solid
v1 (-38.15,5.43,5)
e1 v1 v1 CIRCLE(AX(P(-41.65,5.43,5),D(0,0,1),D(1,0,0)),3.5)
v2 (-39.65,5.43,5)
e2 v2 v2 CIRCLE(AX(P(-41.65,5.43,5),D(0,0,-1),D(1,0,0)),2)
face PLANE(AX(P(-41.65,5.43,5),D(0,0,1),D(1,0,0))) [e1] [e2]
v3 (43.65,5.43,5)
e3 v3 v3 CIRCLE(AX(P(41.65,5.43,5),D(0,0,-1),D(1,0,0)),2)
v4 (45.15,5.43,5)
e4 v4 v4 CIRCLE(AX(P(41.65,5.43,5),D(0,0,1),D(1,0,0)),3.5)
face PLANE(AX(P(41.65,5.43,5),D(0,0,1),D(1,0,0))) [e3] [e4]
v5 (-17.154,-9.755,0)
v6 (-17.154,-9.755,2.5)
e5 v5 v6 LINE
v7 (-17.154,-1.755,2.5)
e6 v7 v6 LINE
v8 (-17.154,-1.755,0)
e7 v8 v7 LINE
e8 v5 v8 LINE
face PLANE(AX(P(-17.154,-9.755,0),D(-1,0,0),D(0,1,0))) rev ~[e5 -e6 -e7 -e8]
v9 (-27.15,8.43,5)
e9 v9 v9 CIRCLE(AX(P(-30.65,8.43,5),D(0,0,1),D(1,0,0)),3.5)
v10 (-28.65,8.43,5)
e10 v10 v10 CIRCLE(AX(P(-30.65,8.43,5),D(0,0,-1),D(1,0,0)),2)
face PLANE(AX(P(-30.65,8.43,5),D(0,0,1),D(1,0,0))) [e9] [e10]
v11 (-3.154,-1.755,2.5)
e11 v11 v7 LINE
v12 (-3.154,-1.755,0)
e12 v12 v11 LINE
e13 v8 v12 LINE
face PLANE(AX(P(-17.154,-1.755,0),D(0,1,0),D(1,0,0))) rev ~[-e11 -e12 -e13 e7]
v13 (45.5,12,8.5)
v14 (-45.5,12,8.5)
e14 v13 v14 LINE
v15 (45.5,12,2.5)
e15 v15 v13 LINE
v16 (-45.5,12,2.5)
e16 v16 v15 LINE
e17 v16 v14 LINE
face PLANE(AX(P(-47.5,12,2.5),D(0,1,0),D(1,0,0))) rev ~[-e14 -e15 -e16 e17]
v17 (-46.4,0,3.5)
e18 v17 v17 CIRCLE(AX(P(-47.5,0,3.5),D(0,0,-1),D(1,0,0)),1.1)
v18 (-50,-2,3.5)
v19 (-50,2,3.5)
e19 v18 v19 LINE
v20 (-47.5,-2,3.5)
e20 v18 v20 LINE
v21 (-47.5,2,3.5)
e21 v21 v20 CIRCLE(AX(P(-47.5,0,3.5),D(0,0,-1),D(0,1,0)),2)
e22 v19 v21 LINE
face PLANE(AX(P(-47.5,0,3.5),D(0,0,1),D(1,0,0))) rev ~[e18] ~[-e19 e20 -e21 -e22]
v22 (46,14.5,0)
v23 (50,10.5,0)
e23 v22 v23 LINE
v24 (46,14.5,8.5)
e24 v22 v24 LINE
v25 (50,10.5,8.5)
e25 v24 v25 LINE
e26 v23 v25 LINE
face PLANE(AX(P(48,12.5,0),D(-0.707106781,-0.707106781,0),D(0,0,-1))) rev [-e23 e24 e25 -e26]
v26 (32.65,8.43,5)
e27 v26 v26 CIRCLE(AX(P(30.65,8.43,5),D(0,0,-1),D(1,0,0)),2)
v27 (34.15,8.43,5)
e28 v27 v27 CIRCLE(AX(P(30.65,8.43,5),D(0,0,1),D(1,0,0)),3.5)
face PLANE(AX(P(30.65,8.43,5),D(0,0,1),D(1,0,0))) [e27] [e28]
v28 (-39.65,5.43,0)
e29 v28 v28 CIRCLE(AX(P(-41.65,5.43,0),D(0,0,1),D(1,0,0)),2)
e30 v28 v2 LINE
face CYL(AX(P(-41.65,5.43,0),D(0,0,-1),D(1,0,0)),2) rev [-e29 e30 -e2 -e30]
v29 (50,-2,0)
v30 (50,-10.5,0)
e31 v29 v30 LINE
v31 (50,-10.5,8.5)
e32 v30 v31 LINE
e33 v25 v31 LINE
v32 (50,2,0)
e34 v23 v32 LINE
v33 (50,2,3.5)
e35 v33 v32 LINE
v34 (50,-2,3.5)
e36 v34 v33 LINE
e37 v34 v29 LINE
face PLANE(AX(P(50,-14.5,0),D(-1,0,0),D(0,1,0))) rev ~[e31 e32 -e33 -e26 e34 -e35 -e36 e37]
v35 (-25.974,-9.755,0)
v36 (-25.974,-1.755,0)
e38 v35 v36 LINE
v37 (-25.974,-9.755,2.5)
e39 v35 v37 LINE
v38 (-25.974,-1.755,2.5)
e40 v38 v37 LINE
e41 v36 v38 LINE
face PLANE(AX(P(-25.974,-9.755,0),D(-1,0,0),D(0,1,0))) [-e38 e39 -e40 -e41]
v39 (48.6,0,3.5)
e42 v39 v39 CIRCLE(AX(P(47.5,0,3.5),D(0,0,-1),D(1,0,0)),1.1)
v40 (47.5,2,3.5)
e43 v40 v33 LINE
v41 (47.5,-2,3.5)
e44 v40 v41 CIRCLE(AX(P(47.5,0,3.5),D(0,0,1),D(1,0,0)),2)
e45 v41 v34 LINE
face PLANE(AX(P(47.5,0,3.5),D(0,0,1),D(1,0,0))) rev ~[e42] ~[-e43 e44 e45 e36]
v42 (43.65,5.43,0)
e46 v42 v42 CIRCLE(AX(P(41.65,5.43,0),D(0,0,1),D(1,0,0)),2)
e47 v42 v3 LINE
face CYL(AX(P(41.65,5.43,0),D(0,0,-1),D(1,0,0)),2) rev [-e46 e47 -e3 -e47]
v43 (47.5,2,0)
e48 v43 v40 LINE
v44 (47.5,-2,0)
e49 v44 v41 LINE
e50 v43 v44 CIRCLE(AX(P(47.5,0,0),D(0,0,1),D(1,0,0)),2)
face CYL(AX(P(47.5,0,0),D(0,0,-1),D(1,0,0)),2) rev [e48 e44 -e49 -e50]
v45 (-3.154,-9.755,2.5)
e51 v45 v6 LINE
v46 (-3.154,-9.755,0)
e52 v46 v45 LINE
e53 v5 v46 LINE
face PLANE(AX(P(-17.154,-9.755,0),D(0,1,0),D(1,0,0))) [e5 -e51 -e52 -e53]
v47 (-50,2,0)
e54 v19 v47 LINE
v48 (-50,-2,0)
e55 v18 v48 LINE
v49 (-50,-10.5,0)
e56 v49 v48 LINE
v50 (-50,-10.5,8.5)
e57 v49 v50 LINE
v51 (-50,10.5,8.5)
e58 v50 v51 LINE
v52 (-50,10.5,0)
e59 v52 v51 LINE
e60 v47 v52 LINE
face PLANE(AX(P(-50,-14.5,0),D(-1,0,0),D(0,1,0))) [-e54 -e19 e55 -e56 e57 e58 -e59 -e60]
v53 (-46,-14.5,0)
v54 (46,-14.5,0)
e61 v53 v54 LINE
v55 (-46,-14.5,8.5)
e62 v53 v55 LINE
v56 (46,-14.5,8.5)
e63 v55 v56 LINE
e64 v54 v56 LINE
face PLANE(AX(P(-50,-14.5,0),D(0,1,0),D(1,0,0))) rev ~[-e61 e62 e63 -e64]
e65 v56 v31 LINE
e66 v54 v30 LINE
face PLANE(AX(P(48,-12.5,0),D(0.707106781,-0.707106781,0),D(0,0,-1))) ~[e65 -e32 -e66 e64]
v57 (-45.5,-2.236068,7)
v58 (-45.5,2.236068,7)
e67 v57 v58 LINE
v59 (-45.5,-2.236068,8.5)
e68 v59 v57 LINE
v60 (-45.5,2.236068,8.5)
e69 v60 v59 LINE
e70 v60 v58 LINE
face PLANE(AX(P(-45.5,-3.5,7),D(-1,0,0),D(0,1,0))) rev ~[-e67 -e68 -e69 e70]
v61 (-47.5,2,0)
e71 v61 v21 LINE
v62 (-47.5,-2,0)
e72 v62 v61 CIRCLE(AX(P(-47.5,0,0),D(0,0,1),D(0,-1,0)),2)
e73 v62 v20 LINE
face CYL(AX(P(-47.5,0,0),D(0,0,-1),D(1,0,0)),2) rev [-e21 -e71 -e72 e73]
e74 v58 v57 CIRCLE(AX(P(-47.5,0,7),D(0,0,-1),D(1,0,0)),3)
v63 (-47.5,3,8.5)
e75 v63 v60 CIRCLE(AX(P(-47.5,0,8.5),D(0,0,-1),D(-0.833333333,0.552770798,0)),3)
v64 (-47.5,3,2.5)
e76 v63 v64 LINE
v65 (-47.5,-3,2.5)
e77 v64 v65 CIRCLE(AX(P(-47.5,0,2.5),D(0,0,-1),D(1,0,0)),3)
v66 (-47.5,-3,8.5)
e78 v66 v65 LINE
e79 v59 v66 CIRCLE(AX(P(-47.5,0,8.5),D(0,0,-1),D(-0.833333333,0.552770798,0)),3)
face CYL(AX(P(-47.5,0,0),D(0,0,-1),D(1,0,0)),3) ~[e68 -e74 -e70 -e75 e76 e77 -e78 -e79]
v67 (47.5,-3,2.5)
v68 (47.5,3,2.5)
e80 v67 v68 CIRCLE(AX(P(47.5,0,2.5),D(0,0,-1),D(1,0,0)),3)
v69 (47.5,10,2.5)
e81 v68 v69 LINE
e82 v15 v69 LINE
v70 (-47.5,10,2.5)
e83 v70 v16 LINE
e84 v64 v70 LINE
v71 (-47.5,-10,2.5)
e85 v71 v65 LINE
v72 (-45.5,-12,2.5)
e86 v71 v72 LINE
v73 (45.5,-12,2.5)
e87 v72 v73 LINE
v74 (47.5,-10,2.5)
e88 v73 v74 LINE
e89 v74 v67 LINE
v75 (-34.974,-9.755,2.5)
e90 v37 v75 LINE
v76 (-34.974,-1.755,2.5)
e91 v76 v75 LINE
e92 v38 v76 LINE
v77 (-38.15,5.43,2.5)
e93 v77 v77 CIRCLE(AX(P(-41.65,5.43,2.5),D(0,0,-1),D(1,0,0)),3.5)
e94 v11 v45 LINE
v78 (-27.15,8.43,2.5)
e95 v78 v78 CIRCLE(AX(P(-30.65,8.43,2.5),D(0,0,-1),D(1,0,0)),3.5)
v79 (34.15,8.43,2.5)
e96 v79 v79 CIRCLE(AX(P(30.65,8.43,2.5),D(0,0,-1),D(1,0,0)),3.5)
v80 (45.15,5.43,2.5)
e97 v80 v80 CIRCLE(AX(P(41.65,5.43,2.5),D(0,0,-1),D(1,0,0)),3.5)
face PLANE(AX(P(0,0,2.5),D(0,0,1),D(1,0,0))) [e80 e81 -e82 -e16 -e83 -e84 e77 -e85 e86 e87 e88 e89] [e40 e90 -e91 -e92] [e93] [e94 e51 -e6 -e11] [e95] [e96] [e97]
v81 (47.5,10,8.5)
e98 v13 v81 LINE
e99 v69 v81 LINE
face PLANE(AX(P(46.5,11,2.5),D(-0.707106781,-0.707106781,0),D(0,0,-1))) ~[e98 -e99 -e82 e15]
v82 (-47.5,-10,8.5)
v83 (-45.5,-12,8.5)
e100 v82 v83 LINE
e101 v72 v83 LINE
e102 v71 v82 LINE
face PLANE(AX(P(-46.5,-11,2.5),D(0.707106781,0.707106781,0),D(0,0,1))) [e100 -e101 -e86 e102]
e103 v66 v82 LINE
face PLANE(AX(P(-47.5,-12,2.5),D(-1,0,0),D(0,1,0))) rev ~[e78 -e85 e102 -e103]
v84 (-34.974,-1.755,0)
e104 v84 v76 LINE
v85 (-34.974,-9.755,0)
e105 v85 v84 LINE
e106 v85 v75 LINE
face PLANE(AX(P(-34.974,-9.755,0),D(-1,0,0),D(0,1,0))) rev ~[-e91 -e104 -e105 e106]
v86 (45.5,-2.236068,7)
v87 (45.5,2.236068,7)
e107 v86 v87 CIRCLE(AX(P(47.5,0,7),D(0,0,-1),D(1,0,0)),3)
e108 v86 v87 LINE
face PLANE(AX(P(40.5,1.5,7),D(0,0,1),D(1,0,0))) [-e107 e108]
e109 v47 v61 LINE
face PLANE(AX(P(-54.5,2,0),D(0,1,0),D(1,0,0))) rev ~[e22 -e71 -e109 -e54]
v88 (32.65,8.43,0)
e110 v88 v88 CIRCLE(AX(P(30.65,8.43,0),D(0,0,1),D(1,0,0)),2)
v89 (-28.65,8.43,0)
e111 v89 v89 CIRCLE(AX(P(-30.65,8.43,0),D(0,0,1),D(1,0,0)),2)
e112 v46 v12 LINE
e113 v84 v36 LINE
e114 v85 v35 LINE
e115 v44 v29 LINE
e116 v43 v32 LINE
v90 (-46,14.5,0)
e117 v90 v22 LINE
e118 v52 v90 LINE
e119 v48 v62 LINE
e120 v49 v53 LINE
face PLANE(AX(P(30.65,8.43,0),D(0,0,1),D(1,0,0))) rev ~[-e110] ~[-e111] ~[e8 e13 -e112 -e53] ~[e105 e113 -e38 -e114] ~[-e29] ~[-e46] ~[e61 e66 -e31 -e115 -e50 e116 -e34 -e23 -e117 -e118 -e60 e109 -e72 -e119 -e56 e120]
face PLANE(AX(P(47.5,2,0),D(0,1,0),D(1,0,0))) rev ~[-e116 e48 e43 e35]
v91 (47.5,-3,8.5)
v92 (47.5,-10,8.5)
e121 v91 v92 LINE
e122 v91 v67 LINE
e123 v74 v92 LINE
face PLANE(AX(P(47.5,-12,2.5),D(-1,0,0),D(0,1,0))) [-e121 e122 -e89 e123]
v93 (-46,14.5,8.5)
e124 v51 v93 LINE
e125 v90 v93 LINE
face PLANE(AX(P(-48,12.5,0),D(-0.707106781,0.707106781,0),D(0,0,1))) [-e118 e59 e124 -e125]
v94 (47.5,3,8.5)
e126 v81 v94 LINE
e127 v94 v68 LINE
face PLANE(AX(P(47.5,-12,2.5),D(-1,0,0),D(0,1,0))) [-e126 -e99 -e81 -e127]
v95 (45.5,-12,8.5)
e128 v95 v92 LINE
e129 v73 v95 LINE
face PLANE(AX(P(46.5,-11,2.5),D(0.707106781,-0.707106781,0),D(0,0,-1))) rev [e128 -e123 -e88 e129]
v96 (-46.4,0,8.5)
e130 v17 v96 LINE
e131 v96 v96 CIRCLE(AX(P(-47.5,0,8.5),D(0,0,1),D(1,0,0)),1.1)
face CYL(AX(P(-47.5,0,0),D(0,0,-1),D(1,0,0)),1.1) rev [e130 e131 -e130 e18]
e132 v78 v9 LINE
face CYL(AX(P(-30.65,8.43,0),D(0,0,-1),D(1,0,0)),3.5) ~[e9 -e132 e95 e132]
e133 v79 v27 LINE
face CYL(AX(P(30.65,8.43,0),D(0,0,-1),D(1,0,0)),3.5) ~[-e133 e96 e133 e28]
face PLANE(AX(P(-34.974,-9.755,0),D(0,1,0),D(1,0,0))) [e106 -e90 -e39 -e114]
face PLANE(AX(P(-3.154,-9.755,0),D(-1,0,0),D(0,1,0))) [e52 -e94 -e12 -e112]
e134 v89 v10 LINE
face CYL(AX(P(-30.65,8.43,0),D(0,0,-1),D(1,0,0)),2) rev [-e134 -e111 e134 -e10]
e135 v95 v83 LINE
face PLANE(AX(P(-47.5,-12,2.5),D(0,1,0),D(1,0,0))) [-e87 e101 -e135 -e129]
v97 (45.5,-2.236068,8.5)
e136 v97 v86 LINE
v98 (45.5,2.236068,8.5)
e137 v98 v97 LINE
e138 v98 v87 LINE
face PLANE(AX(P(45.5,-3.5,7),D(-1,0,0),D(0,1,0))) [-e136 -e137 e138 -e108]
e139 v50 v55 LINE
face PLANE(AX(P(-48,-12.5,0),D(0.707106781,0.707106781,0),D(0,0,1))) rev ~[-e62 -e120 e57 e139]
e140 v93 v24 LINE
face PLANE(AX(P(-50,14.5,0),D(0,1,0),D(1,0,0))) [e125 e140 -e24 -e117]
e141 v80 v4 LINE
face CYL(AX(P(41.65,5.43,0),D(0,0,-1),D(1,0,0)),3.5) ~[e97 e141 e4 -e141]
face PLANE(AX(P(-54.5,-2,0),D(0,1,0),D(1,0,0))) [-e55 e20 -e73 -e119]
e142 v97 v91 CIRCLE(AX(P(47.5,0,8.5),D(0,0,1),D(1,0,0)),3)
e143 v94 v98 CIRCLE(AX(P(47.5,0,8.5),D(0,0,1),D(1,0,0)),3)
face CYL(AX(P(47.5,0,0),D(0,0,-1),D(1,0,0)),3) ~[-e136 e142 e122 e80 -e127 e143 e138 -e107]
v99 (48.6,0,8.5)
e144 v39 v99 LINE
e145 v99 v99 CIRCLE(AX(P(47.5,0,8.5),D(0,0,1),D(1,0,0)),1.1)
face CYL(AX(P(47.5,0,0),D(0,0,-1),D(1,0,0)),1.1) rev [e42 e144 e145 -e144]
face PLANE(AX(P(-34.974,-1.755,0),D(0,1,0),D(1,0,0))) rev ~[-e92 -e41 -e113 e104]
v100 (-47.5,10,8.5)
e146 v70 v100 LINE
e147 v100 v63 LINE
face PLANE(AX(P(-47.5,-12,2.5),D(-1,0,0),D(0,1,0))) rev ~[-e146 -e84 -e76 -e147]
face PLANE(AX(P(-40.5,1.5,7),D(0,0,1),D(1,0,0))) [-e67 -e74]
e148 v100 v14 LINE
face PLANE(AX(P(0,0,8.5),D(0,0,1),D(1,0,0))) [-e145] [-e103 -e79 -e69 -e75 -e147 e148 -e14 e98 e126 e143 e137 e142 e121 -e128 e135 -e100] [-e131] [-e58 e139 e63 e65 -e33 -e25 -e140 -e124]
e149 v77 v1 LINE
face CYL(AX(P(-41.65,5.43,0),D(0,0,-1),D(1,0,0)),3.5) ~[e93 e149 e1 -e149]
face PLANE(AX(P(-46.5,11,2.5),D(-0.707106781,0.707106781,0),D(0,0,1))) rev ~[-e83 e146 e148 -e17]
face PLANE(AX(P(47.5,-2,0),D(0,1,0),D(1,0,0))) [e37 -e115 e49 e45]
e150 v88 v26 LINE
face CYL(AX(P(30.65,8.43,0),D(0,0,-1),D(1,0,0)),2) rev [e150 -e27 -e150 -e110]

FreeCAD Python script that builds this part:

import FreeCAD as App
import Part
import Sketcher
from FreeCAD import Vector


def edges_at(feature, points):
    """Names of the edges that pass closest to the given points."""
    edges = feature.Shape.Edges
    near = lambda p: min(range(len(edges)), key=lambda i: edges[i].distToShape(Part.Vertex(*p))[0])
    return sorted({f"Edge{near(p) + 1}" for p in points})

doc = App.newDocument("Part")
body = doc.addObject("PartDesign::Body", "Body")

# Sketch on XY plane
sketch1 = body.newObject("Sketcher::SketchObject", "Sketch")
sketch1.AttachmentSupport = (doc.getObject("XY_Plane"), [""])
sketch1.MapMode = "FlatFace"
sketch1.addGeometry(Part.LineSegment(Vector(-17, -3, 0), Vector(-17, -11, 0)), False)
sketch1.addGeometry(Part.LineSegment(Vector(-17, -11, 0), Vector(-3, -11, 0)), False)
sketch1.addGeometry(Part.LineSegment(Vector(-3, -11, 0), Vector(-3, -3, 0)), False)
sketch1.addGeometry(Part.LineSegment(Vector(-3, -3, 0), Vector(-17, -3, 0)), False)
sketch1.addConstraint(Sketcher.Constraint("Coincident", 0, 2, 1, 1))
sketch1.addConstraint(Sketcher.Constraint("Coincident", 1, 2, 2, 1))
sketch1.addConstraint(Sketcher.Constraint("Coincident", 2, 2, 3, 1))
sketch1.addConstraint(Sketcher.Constraint("Coincident", 3, 2, 0, 1))
sketch1.addConstraint(Sketcher.Constraint("Vertical", 0))
sketch1.addConstraint(Sketcher.Constraint("Horizontal", 1))
sketch1.addConstraint(Sketcher.Constraint("Vertical", 2))
sketch1.addConstraint(Sketcher.Constraint("Horizontal", 3))
sketch1.addConstraint(Sketcher.Constraint("DistanceX", 1, 1, 1, 2, 14.0))
sketch1.addConstraint(Sketcher.Constraint("DistanceY", 0, 2, 0, 1, 8.0))
sketch1.addConstraint(Sketcher.Constraint("DistanceX", 0, 2, -1, 1, 17.154))
sketch1.addConstraint(Sketcher.Constraint("DistanceY", 0, 2, -1, 1, 10.755))
pad1 = body.newObject("PartDesign::Pad", "Pad")
pad1.Profile = sketch1
pad1.Length = 10
body2 = doc.addObject("PartDesign::Body", "Body001")
body2.AllowCompound = True

# Sketch on XY plane
sketch2 = body2.newObject("Sketcher::SketchObject", "Sketch001")
sketch2.AttachmentSupport = (doc.getObject("XY_Plane001"), [""])
sketch2.MapMode = "FlatFace"
sketch2.addGeometry(Part.LineSegment(Vector(-35, -3, 0), Vector(-35, -11, 0)), False)
sketch2.addGeometry(Part.LineSegment(Vector(-35, -11, 0), Vector(-26, -11, 0)), False)
sketch2.addGeometry(Part.LineSegment(Vector(-26, -11, 0), Vector(-26, -3, 0)), False)
sketch2.addGeometry(Part.LineSegment(Vector(-26, -3, 0), Vector(-35, -3, 0)), False)
sketch2.addConstraint(Sketcher.Constraint("Coincident", 0, 2, 1, 1))
sketch2.addConstraint(Sketcher.Constraint("Coincident", 1, 2, 2, 1))
sketch2.addConstraint(Sketcher.Constraint("Coincident", 2, 2, 3, 1))
sketch2.addConstraint(Sketcher.Constraint("Coincident", 3, 2, 0, 1))
sketch2.addConstraint(Sketcher.Constraint("Vertical", 0))
sketch2.addConstraint(Sketcher.Constraint("Horizontal", 1))
sketch2.addConstraint(Sketcher.Constraint("Vertical", 2))
sketch2.addConstraint(Sketcher.Constraint("Horizontal", 3))
sketch2.addConstraint(Sketcher.Constraint("DistanceX", 1, 1, 1, 2, 9.0))
sketch2.addConstraint(Sketcher.Constraint("DistanceY", 0, 2, 0, 1, 8.0))
sketch2.addConstraint(Sketcher.Constraint("DistanceX", 0, 2, -1, 1, 34.974))
sketch2.addConstraint(Sketcher.Constraint("DistanceY", 0, 2, -1, 1, 10.755))
pad2 = body2.newObject("PartDesign::Pad", "Pad001")
pad2.Profile = sketch2
pad2.Length = 10
doc.recompute()

boolean = body2.newObject("PartDesign::Boolean", "Boolean")
boolean.Type = "Fuse"
boolean.addObjects([body])
body3 = doc.addObject("PartDesign::Body", "Body002")
body3.AllowCompound = True
doc.recompute()

body2.Placement = App.Placement(Vector(0, 1, 0), App.Rotation(Vector(0, 0, 1), 0))
boolean2 = body3.newObject("PartDesign::Boolean", "Boolean001")
boolean2.Type = "Fuse"
boolean2.addObjects([body2])
body4 = doc.addObject("PartDesign::Body", "Body003")

# Sketch on XY plane
sketch3 = body4.newObject("Sketcher::SketchObject", "Sketch002")
sketch3.AttachmentSupport = (doc.getObject("XY_Plane003"), [""])
sketch3.MapMode = "FlatFace"
sketch3.addGeometry(Part.LineSegment(Vector(-54.5, 2, 0), Vector(-54.5, -2, 0)), False)
sketch3.addGeometry(Part.LineSegment(Vector(-54.5, -2, 0), Vector(-47.5, -2, 0)), False)
sketch3.addGeometry(Part.LineSegment(Vector(-47.5, -2, 0), Vector(-47.5, 2, 0)), False)
sketch3.addGeometry(Part.LineSegment(Vector(-47.5, 2, 0), Vector(-54.5, 2, 0)), False)
sketch3.addConstraint(Sketcher.Constraint("Coincident", 0, 2, 1, 1))
sketch3.addConstraint(Sketcher.Constraint("Coincident", 1, 2, 2, 1))
sketch3.addConstraint(Sketcher.Constraint("Coincident", 2, 2, 3, 1))
sketch3.addConstraint(Sketcher.Constraint("Coincident", 3, 2, 0, 1))
sketch3.addConstraint(Sketcher.Constraint("Vertical", 0))
sketch3.addConstraint(Sketcher.Constraint("Horizontal", 1))
sketch3.addConstraint(Sketcher.Constraint("Vertical", 2))
sketch3.addConstraint(Sketcher.Constraint("Horizontal", 3))
sketch3.addConstraint(Sketcher.Constraint("DistanceX", 1, 1, 1, 2, 7.0))
sketch3.addConstraint(Sketcher.Constraint("DistanceY", 0, 2, 0, 1, 4.0))
sketch3.addConstraint(Sketcher.Constraint("DistanceY", 0, 2, -1, 1, 2.0))
sketch3.addConstraint(Sketcher.Constraint("DistanceX", 0, 2, -1, 1, 54.5))
pad3 = body4.newObject("PartDesign::Pad", "Pad002")
pad3.Profile = sketch3
pad3.Length = 3.5
body5 = doc.addObject("PartDesign::Body", "Body004")

# Sketch on XY plane
sketch4 = body5.newObject("Sketcher::SketchObject", "Sketch003")
sketch4.AttachmentSupport = (doc.getObject("XY_Plane004"), [""])
sketch4.MapMode = "FlatFace"
sketch4.addGeometry(Part.Circle(Vector(-47.5, 0, 0), Vector(0, 0, 1), 2), False)
sketch4.addConstraint(Sketcher.Constraint("PointOnObject", 0, 3, -1))
sketch4.addConstraint(Sketcher.Constraint("Diameter", 0, 4.0))
sketch4.addConstraint(Sketcher.Constraint("DistanceX", 0, 3, -1, 1, 47.5))
pad4 = body5.newObject("PartDesign::Pad", "Pad003")
pad4.Profile = sketch4
pad4.Length = 3.5
body6 = doc.addObject("PartDesign::Body", "Body005")

# Sketch on XY plane
sketch5 = body6.newObject("Sketcher::SketchObject", "Sketch004")
sketch5.AttachmentSupport = (doc.getObject("XY_Plane005"), [""])
sketch5.MapMode = "FlatFace"
sketch5.addGeometry(Part.Circle(Vector(47.5, 0, 0), Vector(0, 0, 1), 2), False)
sketch5.addConstraint(Sketcher.Constraint("PointOnObject", 0, 3, -1))
sketch5.addConstraint(Sketcher.Constraint("Diameter", 0, 4.0))
sketch5.addConstraint(Sketcher.Constraint("DistanceX", -1, 1, 0, 3, 47.5))
pad5 = body6.newObject("PartDesign::Pad", "Pad004")
pad5.Profile = sketch5
pad5.Length = 3.5
body7 = doc.addObject("PartDesign::Body", "Body006")
body7.AllowCompound = True

# Sketch on XY plane
sketch6 = body7.newObject("Sketcher::SketchObject", "Sketch005")
sketch6.AttachmentSupport = (doc.getObject("XY_Plane006"), [""])
sketch6.MapMode = "FlatFace"
sketch6.addGeometry(Part.LineSegment(Vector(47.5, 2, 0), Vector(47.5, -2, 0)), False)
sketch6.addGeometry(Part.LineSegment(Vector(47.5, -2, 0), Vector(54.5, -2, 0)), False)
sketch6.addGeometry(Part.LineSegment(Vector(54.5, -2, 0), Vector(54.5, 2, 0)), False)
sketch6.addGeometry(Part.LineSegment(Vector(54.5, 2, 0), Vector(47.5, 2, 0)), False)
sketch6.addConstraint(Sketcher.Constraint("Coincident", 0, 2, 1, 1))
sketch6.addConstraint(Sketcher.Constraint("Coincident", 1, 2, 2, 1))
sketch6.addConstraint(Sketcher.Constraint("Coincident", 2, 2, 3, 1))
sketch6.addConstraint(Sketcher.Constraint("Coincident", 3, 2, 0, 1))
sketch6.addConstraint(Sketcher.Constraint("Vertical", 0))
sketch6.addConstraint(Sketcher.Constraint("Horizontal", 1))
sketch6.addConstraint(Sketcher.Constraint("Vertical", 2))
sketch6.addConstraint(Sketcher.Constraint("Horizontal", 3))
sketch6.addConstraint(Sketcher.Constraint("DistanceX", 1, 1, 1, 2, 7.0))
sketch6.addConstraint(Sketcher.Constraint("DistanceY", 0, 2, 0, 1, 4.0))
sketch6.addConstraint(Sketcher.Constraint("DistanceY", 0, 2, -1, 1, 2.0))
sketch6.addConstraint(Sketcher.Constraint("DistanceX", -1, 1, 0, 2, 47.5))
pad6 = body7.newObject("PartDesign::Pad", "Pad005")
pad6.Profile = sketch6
pad6.Length = 3.5
doc.recompute()

boolean3 = body7.newObject("PartDesign::Boolean", "Boolean002")
boolean3.Type = "Fuse"
boolean3.addObjects([body4])
doc.recompute()

boolean4 = body7.newObject("PartDesign::Boolean", "Boolean003")
boolean4.Type = "Fuse"
boolean4.addObjects([body5])
doc.recompute()

boolean5 = body7.newObject("PartDesign::Boolean", "Boolean004")
boolean5.Type = "Fuse"
boolean5.addObjects([body6])
body8 = doc.addObject("PartDesign::Body", "Body007")

# Sketch on XY plane
sketch7 = body8.newObject("Sketcher::SketchObject", "Sketch006")
sketch7.AttachmentSupport = (doc.getObject("XY_Plane007"), [""])
sketch7.MapMode = "FlatFace"
sketch7.addGeometry(Part.Circle(Vector(47.5, 0, 0), Vector(0, 0, 1), 1.1), False)
sketch7.addConstraint(Sketcher.Constraint("PointOnObject", 0, 3, -1))
sketch7.addConstraint(Sketcher.Constraint("Diameter", 0, 2.2))
sketch7.addConstraint(Sketcher.Constraint("DistanceX", -1, 1, 0, 3, 47.5))
pad7 = body8.newObject("PartDesign::Pad", "Pad006")
pad7.Profile = sketch7
pad7.Length = 8.5
body9 = doc.addObject("PartDesign::Body", "Body008")
body9.AllowCompound = True

# Sketch on XY plane
sketch8 = body9.newObject("Sketcher::SketchObject", "Sketch007")
sketch8.AttachmentSupport = (doc.getObject("XY_Plane008"), [""])
sketch8.MapMode = "FlatFace"
sketch8.addGeometry(Part.Circle(Vector(-47.5, 0, 0), Vector(0, 0, 1), 1.1), False)
sketch8.addConstraint(Sketcher.Constraint("PointOnObject", 0, 3, -1))
sketch8.addConstraint(Sketcher.Constraint("Diameter", 0, 2.2))
sketch8.addConstraint(Sketcher.Constraint("DistanceX", 0, 3, -1, 1, 47.5))
pad8 = body9.newObject("PartDesign::Pad", "Pad007")
pad8.Profile = sketch8
pad8.Length = 8.5
doc.recompute()

boolean6 = body9.newObject("PartDesign::Boolean", "Boolean005")
boolean6.Type = "Fuse"
boolean6.addObjects([body8])
body10 = doc.addObject("PartDesign::Body", "Body009")

# Sketch on XY plane
sketch9 = body10.newObject("Sketcher::SketchObject", "Sketch008")
sketch9.AttachmentSupport = (doc.getObject("XY_Plane009"), [""])
sketch9.MapMode = "FlatFace"
sketch9.addGeometry(Part.Circle(Vector(-25.6, 13.9, 0), Vector(0, 0, 1), 2), False)
sketch9.addConstraint(Sketcher.Constraint("Diameter", 0, 4.0))
sketch9.addConstraint(Sketcher.Constraint("DistanceX", 0, 3, -1, 1, 25.65))
sketch9.addConstraint(Sketcher.Constraint("DistanceY", -1, 1, 0, 3, 13.93))
pad9 = body10.newObject("PartDesign::Pad", "Pad008")
pad9.Profile = sketch9
pad9.Length = 10
body11 = doc.addObject("PartDesign::Body", "Body010")

# Sketch on XY plane
sketch10 = body11.newObject("Sketcher::SketchObject", "Sketch009")
sketch10.AttachmentSupport = (doc.getObject("XY_Plane010"), [""])
sketch10.MapMode = "FlatFace"
sketch10.addGeometry(Part.Circle(Vector(-36.6, 10.9, 0), Vector(0, 0, 1), 2), False)
sketch10.addConstraint(Sketcher.Constraint("Diameter", 0, 4.0))
sketch10.addConstraint(Sketcher.Constraint("DistanceX", 0, 3, -1, 1, 36.65))
sketch10.addConstraint(Sketcher.Constraint("DistanceY", -1, 1, 0, 3, 10.93))
pad10 = body11.newObject("PartDesign::Pad", "Pad009")
pad10.Profile = sketch10
pad10.Length = 10
body12 = doc.addObject("PartDesign::Body", "Body011")

# Sketch on XY plane
sketch11 = body12.newObject("Sketcher::SketchObject", "Sketch010")
sketch11.AttachmentSupport = (doc.getObject("XY_Plane011"), [""])
sketch11.MapMode = "FlatFace"
sketch11.addGeometry(Part.Circle(Vector(35.6, 13.9, 0), Vector(0, 0, 1), 2), False)
sketch11.addConstraint(Sketcher.Constraint("Diameter", 0, 4.0))
sketch11.addConstraint(Sketcher.Constraint("DistanceX", -1, 1, 0, 3, 35.65))
sketch11.addConstraint(Sketcher.Constraint("DistanceY", -1, 1, 0, 3, 13.93))
pad11 = body12.newObject("PartDesign::Pad", "Pad010")
pad11.Profile = sketch11
pad11.Length = 10
body13 = doc.addObject("PartDesign::Body", "Body012")
body13.AllowCompound = True

# Sketch on XY plane
sketch12 = body13.newObject("Sketcher::SketchObject", "Sketch011")
sketch12.AttachmentSupport = (doc.getObject("XY_Plane012"), [""])
sketch12.MapMode = "FlatFace"
sketch12.addGeometry(Part.Circle(Vector(46.6, 10.9, 0), Vector(0, 0, 1), 2), False)
sketch12.addConstraint(Sketcher.Constraint("Diameter", 0, 4.0))
sketch12.addConstraint(Sketcher.Constraint("DistanceX", -1, 1, 0, 3, 46.65))
sketch12.addConstraint(Sketcher.Constraint("DistanceY", -1, 1, 0, 3, 10.93))
pad12 = body13.newObject("PartDesign::Pad", "Pad011")
pad12.Profile = sketch12
pad12.Length = 10
doc.recompute()

boolean7 = body13.newObject("PartDesign::Boolean", "Boolean006")
boolean7.Type = "Fuse"
boolean7.addObjects([body10])
doc.recompute()

boolean8 = body13.newObject("PartDesign::Boolean", "Boolean007")
boolean8.Type = "Fuse"
boolean8.addObjects([body11])
doc.recompute()

boolean9 = body13.newObject("PartDesign::Boolean", "Boolean008")
boolean9.Type = "Fuse"
boolean9.addObjects([body12])
body14 = doc.addObject("PartDesign::Body", "Body013")
body14.AllowCompound = True
doc.recompute()

body13.Placement = App.Placement(Vector(-5, -5.5, 0), App.Rotation(Vector(0, 0, 1), 0))
boolean10 = body14.newObject("PartDesign::Boolean", "Boolean009")
boolean10.Type = "Fuse"
boolean10.addObjects([body13])
body15 = doc.addObject("PartDesign::Body", "Body014")

# Sketch on XY plane
sketch13 = body15.newObject("Sketcher::SketchObject", "Sketch012")
sketch13.AttachmentSupport = (doc.getObject("XY_Plane014"), [""])
sketch13.MapMode = "FlatFace"
sketch13.addGeometry(Part.Circle(Vector(-36.6, 10.9, 0), Vector(0, 0, 1), 3.5), False)
sketch13.addConstraint(Sketcher.Constraint("Diameter", 0, 7.0))
sketch13.addConstraint(Sketcher.Constraint("DistanceX", 0, 3, -1, 1, 36.65))
sketch13.addConstraint(Sketcher.Constraint("DistanceY", -1, 1, 0, 3, 10.93))
pad13 = body15.newObject("PartDesign::Pad", "Pad012")
pad13.Profile = sketch13
pad13.Length = 5
body16 = doc.addObject("PartDesign::Body", "Body015")

# Sketch on XY plane
sketch14 = body16.newObject("Sketcher::SketchObject", "Sketch013")
sketch14.AttachmentSupport = (doc.getObject("XY_Plane015"), [""])
sketch14.MapMode = "FlatFace"
sketch14.addGeometry(Part.Circle(Vector(-25.6, 13.9, 0), Vector(0, 0, 1), 3.5), False)
sketch14.addConstraint(Sketcher.Constraint("Diameter", 0, 7.0))
sketch14.addConstraint(Sketcher.Constraint("DistanceX", 0, 3, -1, 1, 25.65))
sketch14.addConstraint(Sketcher.Constraint("DistanceY", -1, 1, 0, 3, 13.93))
pad14 = body16.newObject("PartDesign::Pad", "Pad013")
pad14.Profile = sketch14
pad14.Length = 5
body17 = doc.addObject("PartDesign::Body", "Body016")

# Sketch on XY plane
sketch15 = body17.newObject("Sketcher::SketchObject", "Sketch014")
sketch15.AttachmentSupport = (doc.getObject("XY_Plane016"), [""])
sketch15.MapMode = "FlatFace"
sketch15.addGeometry(Part.Circle(Vector(46.6, 10.9, 0), Vector(0, 0, 1), 3.5), False)
sketch15.addConstraint(Sketcher.Constraint("Diameter", 0, 7.0))
sketch15.addConstraint(Sketcher.Constraint("DistanceX", -1, 1, 0, 3, 46.65))
sketch15.addConstraint(Sketcher.Constraint("DistanceY", -1, 1, 0, 3, 10.93))
pad15 = body17.newObject("PartDesign::Pad", "Pad014")
pad15.Profile = sketch15
pad15.Length = 5
body18 = doc.addObject("PartDesign::Body", "Body017")
body18.AllowCompound = True

# Sketch on XY plane
sketch16 = body18.newObject("Sketcher::SketchObject", "Sketch015")
sketch16.AttachmentSupport = (doc.getObject("XY_Plane017"), [""])
sketch16.MapMode = "FlatFace"
sketch16.addGeometry(Part.Circle(Vector(35.6, 13.9, 0), Vector(0, 0, 1), 3.5), False)
sketch16.addConstraint(Sketcher.Constraint("Diameter", 0, 7.0))
sketch16.addConstraint(Sketcher.Constraint("DistanceX", -1, 1, 0, 3, 35.65))
sketch16.addConstraint(Sketcher.Constraint("DistanceY", -1, 1, 0, 3, 13.93))
pad16 = body18.newObject("PartDesign::Pad", "Pad015")
pad16.Profile = sketch16
pad16.Length = 5
doc.recompute()

boolean11 = body18.newObject("PartDesign::Boolean", "Boolean010")
boolean11.Type = "Fuse"
boolean11.addObjects([body15])
doc.recompute()

boolean12 = body18.newObject("PartDesign::Boolean", "Boolean011")
boolean12.Type = "Fuse"
boolean12.addObjects([body16])
doc.recompute()

boolean13 = body18.newObject("PartDesign::Boolean", "Boolean012")
boolean13.Type = "Fuse"
boolean13.addObjects([body17])
body19 = doc.addObject("PartDesign::Body", "Body018")
body19.AllowCompound = True
doc.recompute()

body18.Placement = App.Placement(Vector(-5, -5.5, 0), App.Rotation(Vector(0, 0, 1), 0))
boolean14 = body19.newObject("PartDesign::Boolean", "Boolean013")
boolean14.Type = "Fuse"
boolean14.addObjects([body18])
body20 = doc.addObject("PartDesign::Body", "Body019")

# Sketch on XY plane
sketch17 = body20.newObject("Sketcher::SketchObject", "Sketch016")
sketch17.AttachmentSupport = (doc.getObject("XY_Plane019"), [""])
sketch17.MapMode = "FlatFace"
sketch17.AttachmentOffset = App.Placement(Vector(0, 0, 2.5), App.Rotation())
sketch17.addGeometry(Part.LineSegment(Vector(-48, 12, 0), Vector(-48, -12, 0)), False)
sketch17.addGeometry(Part.LineSegment(Vector(-48, -12, 0), Vector(48, -12, 0)), False)
sketch17.addGeometry(Part.LineSegment(Vector(48, -12, 0), Vector(48, 12, 0)), False)
sketch17.addGeometry(Part.LineSegment(Vector(48, 12, 0), Vector(-48, 12, 0)), False)
sketch17.addConstraint(Sketcher.Constraint("Coincident", 0, 2, 1, 1))
sketch17.addConstraint(Sketcher.Constraint("Coincident", 1, 2, 2, 1))
sketch17.addConstraint(Sketcher.Constraint("Coincident", 2, 2, 3, 1))
sketch17.addConstraint(Sketcher.Constraint("Coincident", 3, 2, 0, 1))
sketch17.addConstraint(Sketcher.Constraint("Vertical", 0))
sketch17.addConstraint(Sketcher.Constraint("Horizontal", 1))
sketch17.addConstraint(Sketcher.Constraint("Vertical", 2))
sketch17.addConstraint(Sketcher.Constraint("Horizontal", 3))
sketch17.addConstraint(Sketcher.Constraint("Symmetric", 0, 2, 2, 2, -1, 1))
sketch17.addConstraint(Sketcher.Constraint("DistanceX", 1, 1, 1, 2, 95.0))
sketch17.addConstraint(Sketcher.Constraint("DistanceY", 0, 2, 0, 1, 24.0))
pad17 = body20.newObject("PartDesign::Pad", "Pad016")
pad17.Profile = sketch17
pad17.Length = 22.5
body21 = doc.addObject("PartDesign::Body", "Body020")

# Sketch on XY plane
sketch18 = body21.newObject("Sketcher::SketchObject", "Sketch017")
sketch18.AttachmentSupport = (doc.getObject("XY_Plane020"), [""])
sketch18.MapMode = "FlatFace"
sketch18.addGeometry(Part.LineSegment(Vector(-50, 14, 0), Vector(-50, -14, 0)), False)
sketch18.addGeometry(Part.LineSegment(Vector(-50, -14, 0), Vector(50, -14, 0)), False)
sketch18.addGeometry(Part.LineSegment(Vector(50, -14, 0), Vector(50, 14, 0)), False)
sketch18.addGeometry(Part.LineSegment(Vector(50, 14, 0), Vector(-50, 14, 0)), False)
sketch18.addConstraint(Sketcher.Constraint("Coincident", 0, 2, 1, 1))
sketch18.addConstraint(Sketcher.Constraint("Coincident", 1, 2, 2, 1))
sketch18.addConstraint(Sketcher.Constraint("Coincident", 2, 2, 3, 1))
sketch18.addConstraint(Sketcher.Constraint("Coincident", 3, 2, 0, 1))
sketch18.addConstraint(Sketcher.Constraint("Vertical", 0))
sketch18.addConstraint(Sketcher.Constraint("Horizontal", 1))
sketch18.addConstraint(Sketcher.Constraint("Vertical", 2))
sketch18.addConstraint(Sketcher.Constraint("Horizontal", 3))
sketch18.addConstraint(Sketcher.Constraint("Symmetric", 0, 2, 2, 2, -1, 1))
sketch18.addConstraint(Sketcher.Constraint("DistanceX", 1, 1, 1, 2, 100.0))
sketch18.addConstraint(Sketcher.Constraint("DistanceY", 0, 2, 0, 1, 29.0))
pad18 = body21.newObject("PartDesign::Pad", "Pad017")
pad18.Profile = sketch18
pad18.Length = 8.5
doc.recompute()

boolean15 = body21.newObject("PartDesign::Boolean", "Boolean014")
boolean15.Type = "Cut"
boolean15.addObjects([body20])
doc.recompute()

boolean16 = body21.newObject("PartDesign::Boolean", "Boolean015")
boolean16.Type = "Fuse"
boolean16.addObjects([body19])
doc.recompute()

boolean17 = body21.newObject("PartDesign::Boolean", "Boolean016")
boolean17.Type = "Cut"
boolean17.addObjects([body14])
body22 = doc.addObject("PartDesign::Body", "Body021")

# Sketch on XY plane
sketch19 = body22.newObject("Sketcher::SketchObject", "Sketch018")
sketch19.AttachmentSupport = (doc.getObject("XY_Plane021"), [""])
sketch19.MapMode = "FlatFace"
sketch19.AttachmentOffset = App.Placement(Vector(0, 0, 7), App.Rotation())
sketch19.addGeometry(Part.LineSegment(Vector(-46, 6, 0), Vector(-46, -4, 0)), False)
sketch19.addGeometry(Part.LineSegment(Vector(-46, -4, 0), Vector(-36, -4, 0)), False)
sketch19.addGeometry(Part.LineSegment(Vector(-36, -4, 0), Vector(-36, 6, 0)), False)
sketch19.addGeometry(Part.LineSegment(Vector(-36, 6, 0), Vector(-46, 6, 0)), False)
sketch19.addConstraint(Sketcher.Constraint("Coincident", 0, 2, 1, 1))
sketch19.addConstraint(Sketcher.Constraint("Coincident", 1, 2, 2, 1))
sketch19.addConstraint(Sketcher.Constraint("Coincident", 2, 2, 3, 1))
sketch19.addConstraint(Sketcher.Constraint("Coincident", 3, 2, 0, 1))
sketch19.addConstraint(Sketcher.Constraint("Vertical", 0))
sketch19.addConstraint(Sketcher.Constraint("Horizontal", 1))
sketch19.addConstraint(Sketcher.Constraint("Vertical", 2))
sketch19.addConstraint(Sketcher.Constraint("Horizontal", 3))
sketch19.addConstraint(Sketcher.Constraint("Equal", 3, 0))
sketch19.addConstraint(Sketcher.Constraint("DistanceX", 1, 1, 1, 2, 10.0))
sketch19.addConstraint(Sketcher.Constraint("DistanceX", 0, 2, -1, 1, 45.5))
sketch19.addConstraint(Sketcher.Constraint("DistanceY", 0, 2, -1, 1, 3.5))
pad19 = body22.newObject("PartDesign::Pad", "Pad018")
pad19.Profile = sketch19
pad19.Length = 10
body23 = doc.addObject("PartDesign::Body", "Body022")

# Sketch on XY plane
sketch20 = body23.newObject("Sketcher::SketchObject", "Sketch019")
sketch20.AttachmentSupport = (doc.getObject("XY_Plane022"), [""])
sketch20.MapMode = "FlatFace"
sketch20.addGeometry(Part.LineSegment(Vector(-60, 6, 0), Vector(-60, -4, 0)), False)
sketch20.addGeometry(Part.LineSegment(Vector(-60, -4, 0), Vector(-50, -4, 0)), False)
sketch20.addGeometry(Part.LineSegment(Vector(-50, -4, 0), Vector(-50, 6, 0)), False)
sketch20.addGeometry(Part.LineSegment(Vector(-50, 6, 0), Vector(-60, 6, 0)), False)
sketch20.addConstraint(Sketcher.Constraint("Coincident", 0, 2, 1, 1))
sketch20.addConstraint(Sketcher.Constraint("Coincident", 1, 2, 2, 1))
sketch20.addConstraint(Sketcher.Constraint("Coincident", 2, 2, 3, 1))
sketch20.addConstraint(Sketcher.Constraint("Coincident", 3, 2, 0, 1))
sketch20.addConstraint(Sketcher.Constraint("Vertical", 0))
sketch20.addConstraint(Sketcher.Constraint("Horizontal", 1))
sketch20.addConstraint(Sketcher.Constraint("Vertical", 2))
sketch20.addConstraint(Sketcher.Constraint("Horizontal", 3))
sketch20.addConstraint(Sketcher.Constraint("Equal", 3, 0))
sketch20.addConstraint(Sketcher.Constraint("DistanceX", 1, 1, 1, 2, 10.0))
sketch20.addConstraint(Sketcher.Constraint("DistanceX", 0, 2, -1, 1, 60.0))
sketch20.addConstraint(Sketcher.Constraint("DistanceY", 0, 2, -1, 1, 4.5))
pad20 = body23.newObject("PartDesign::Pad", "Pad019")
pad20.Profile = sketch20
pad20.Length = 10
body24 = doc.addObject("PartDesign::Body", "Body023")

# Sketch on XY plane
sketch21 = body24.newObject("Sketcher::SketchObject", "Sketch020")
sketch21.AttachmentSupport = (doc.getObject("XY_Plane023"), [""])
sketch21.MapMode = "FlatFace"
sketch21.addGeometry(Part.Circle(Vector(-47.5, 0, 0), Vector(0, 0, 1), 3), False)
sketch21.addConstraint(Sketcher.Constraint("PointOnObject", 0, 3, -1))
sketch21.addConstraint(Sketcher.Constraint("Diameter", 0, 6.0))
sketch21.addConstraint(Sketcher.Constraint("DistanceX", 0, 3, -1, 1, 47.5))
pad21 = body24.newObject("PartDesign::Pad", "Pad020")
pad21.Profile = sketch21
pad21.Length = 8.5
doc.recompute()

boolean18 = body24.newObject("PartDesign::Boolean", "Boolean017")
boolean18.Type = "Cut"
boolean18.addObjects([body23])
doc.recompute()

boolean19 = body24.newObject("PartDesign::Boolean", "Boolean018")
boolean19.Type = "Cut"
boolean19.addObjects([body22])
body25 = doc.addObject("PartDesign::Body", "Body024")

# Sketch on XY plane
sketch22 = body25.newObject("Sketcher::SketchObject", "Sketch021")
sketch22.AttachmentSupport = (doc.getObject("XY_Plane024"), [""])
sketch22.MapMode = "FlatFace"
sketch22.AttachmentOffset = App.Placement(Vector(0, 0, 7), App.Rotation())
sketch22.addGeometry(Part.LineSegment(Vector(36, 6, 0), Vector(36, -4, 0)), False)
sketch22.addGeometry(Part.LineSegment(Vector(36, -4, 0), Vector(46, -4, 0)), False)
sketch22.addGeometry(Part.LineSegment(Vector(46, -4, 0), Vector(46, 6, 0)), False)
sketch22.addGeometry(Part.LineSegment(Vector(46, 6, 0), Vector(36, 6, 0)), False)
sketch22.addConstraint(Sketcher.Constraint("Coincident", 0, 2, 1, 1))
sketch22.addConstraint(Sketcher.Constraint("Coincident", 1, 2, 2, 1))
sketch22.addConstraint(Sketcher.Constraint("Coincident", 2, 2, 3, 1))
sketch22.addConstraint(Sketcher.Constraint("Coincident", 3, 2, 0, 1))
sketch22.addConstraint(Sketcher.Constraint("Vertical", 0))
sketch22.addConstraint(Sketcher.Constraint("Horizontal", 1))
sketch22.addConstraint(Sketcher.Constraint("Vertical", 2))
sketch22.addConstraint(Sketcher.Constraint("Horizontal", 3))
sketch22.addConstraint(Sketcher.Constraint("Equal", 3, 0))
sketch22.addConstraint(Sketcher.Constraint("DistanceX", 1, 1, 1, 2, 10.0))
sketch22.addConstraint(Sketcher.Constraint("DistanceX", -1, 1, 0, 2, 35.5))
sketch22.addConstraint(Sketcher.Constraint("DistanceY", 0, 2, -1, 1, 3.5))
pad22 = body25.newObject("PartDesign::Pad", "Pad021")
pad22.Profile = sketch22
pad22.Length = 10
body26 = doc.addObject("PartDesign::Body", "Body025")

# Sketch on XY plane
sketch23 = body26.newObject("Sketcher::SketchObject", "Sketch022")
sketch23.AttachmentSupport = (doc.getObject("XY_Plane025"), [""])
sketch23.MapMode = "FlatFace"
sketch23.addGeometry(Part.LineSegment(Vector(50, 6, 0), Vector(50, -4, 0)), False)
sketch23.addGeometry(Part.LineSegment(Vector(50, -4, 0), Vector(60, -4, 0)), False)
sketch23.addGeometry(Part.LineSegment(Vector(60, -4, 0), Vector(60, 6, 0)), False)
sketch23.addGeometry(Part.LineSegment(Vector(60, 6, 0), Vector(50, 6, 0)), False)
sketch23.addConstraint(Sketcher.Constraint("Coincident", 0, 2, 1, 1))
sketch23.addConstraint(Sketcher.Constraint("Coincident", 1, 2, 2, 1))
sketch23.addConstraint(Sketcher.Constraint("Coincident", 2, 2, 3, 1))
sketch23.addConstraint(Sketcher.Constraint("Coincident", 3, 2, 0, 1))
sketch23.addConstraint(Sketcher.Constraint("Vertical", 0))
sketch23.addConstraint(Sketcher.Constraint("Horizontal", 1))
sketch23.addConstraint(Sketcher.Constraint("Vertical", 2))
sketch23.addConstraint(Sketcher.Constraint("Horizontal", 3))
sketch23.addConstraint(Sketcher.Constraint("Equal", 3, 0))
sketch23.addConstraint(Sketcher.Constraint("DistanceX", 1, 1, 1, 2, 10.0))
sketch23.addConstraint(Sketcher.Constraint("DistanceX", -1, 1, 0, 2, 50.0))
sketch23.addConstraint(Sketcher.Constraint("DistanceY", 0, 2, -1, 1, 4.5))
pad23 = body26.newObject("PartDesign::Pad", "Pad022")
pad23.Profile = sketch23
pad23.Length = 10
body27 = doc.addObject("PartDesign::Body", "Body026")
body27.AllowCompound = True

# Sketch on XY plane
sketch24 = body27.newObject("Sketcher::SketchObject", "Sketch023")
sketch24.AttachmentSupport = (doc.getObject("XY_Plane026"), [""])
sketch24.MapMode = "FlatFace"
sketch24.addGeometry(Part.Circle(Vector(47.5, 0, 0), Vector(0, 0, 1), 3), False)
sketch24.addConstraint(Sketcher.Constraint("PointOnObject", 0, 3, -1))
sketch24.addConstraint(Sketcher.Constraint("Diameter", 0, 6.0))
sketch24.addConstraint(Sketcher.Constraint("DistanceX", -1, 1, 0, 3, 47.5))
pad24 = body27.newObject("PartDesign::Pad", "Pad023")
pad24.Profile = sketch24
pad24.Length = 8.5
doc.recompute()

boolean20 = body27.newObject("PartDesign::Boolean", "Boolean019")
boolean20.Type = "Cut"
boolean20.addObjects([body26])
doc.recompute()

boolean21 = body27.newObject("PartDesign::Boolean", "Boolean020")
boolean21.Type = "Cut"
boolean21.addObjects([body25])
doc.recompute()

boolean22 = body27.newObject("PartDesign::Boolean", "Boolean021")
boolean22.Type = "Fuse"
boolean22.addObjects([body24])
doc.recompute()

boolean23 = body27.newObject("PartDesign::Boolean", "Boolean022")
boolean23.Type = "Fuse"
boolean23.addObjects([body21])
doc.recompute()

boolean24 = body27.newObject("PartDesign::Boolean", "Boolean023")
boolean24.Type = "Cut"
boolean24.addObjects([body9])
doc.recompute()

boolean25 = body27.newObject("PartDesign::Boolean", "Boolean024")
boolean25.Type = "Cut"
boolean25.addObjects([body7])
doc.recompute()

chamfer = body27.newObject("PartDesign::Chamfer", "Chamfer")
chamfer.Base = (boolean25, edges_at(boolean25, [
    (47.5, 12, 5.5),
    (-47.5, 12, 5.5),
    (-47.5, -12, 5.5),
    (47.5, -12, 5.5),
]))
chamfer.Size = 2
doc.recompute()

chamfer2 = body27.newObject("PartDesign::Chamfer", "Chamfer001")
chamfer2.Base = (chamfer, edges_at(chamfer, [
    (50, 14.5, 4.25),
    (-50, 14.5, 4.25),
    (50, -14.5, 4.25),
    (-50, -14.5, 4.25),
]))
chamfer2.Size = 4
doc.recompute()

boolean26 = body27.newObject("PartDesign::Boolean", "Boolean025")
boolean26.Type = "Cut"
boolean26.addObjects([body3])

doc.recompute()
